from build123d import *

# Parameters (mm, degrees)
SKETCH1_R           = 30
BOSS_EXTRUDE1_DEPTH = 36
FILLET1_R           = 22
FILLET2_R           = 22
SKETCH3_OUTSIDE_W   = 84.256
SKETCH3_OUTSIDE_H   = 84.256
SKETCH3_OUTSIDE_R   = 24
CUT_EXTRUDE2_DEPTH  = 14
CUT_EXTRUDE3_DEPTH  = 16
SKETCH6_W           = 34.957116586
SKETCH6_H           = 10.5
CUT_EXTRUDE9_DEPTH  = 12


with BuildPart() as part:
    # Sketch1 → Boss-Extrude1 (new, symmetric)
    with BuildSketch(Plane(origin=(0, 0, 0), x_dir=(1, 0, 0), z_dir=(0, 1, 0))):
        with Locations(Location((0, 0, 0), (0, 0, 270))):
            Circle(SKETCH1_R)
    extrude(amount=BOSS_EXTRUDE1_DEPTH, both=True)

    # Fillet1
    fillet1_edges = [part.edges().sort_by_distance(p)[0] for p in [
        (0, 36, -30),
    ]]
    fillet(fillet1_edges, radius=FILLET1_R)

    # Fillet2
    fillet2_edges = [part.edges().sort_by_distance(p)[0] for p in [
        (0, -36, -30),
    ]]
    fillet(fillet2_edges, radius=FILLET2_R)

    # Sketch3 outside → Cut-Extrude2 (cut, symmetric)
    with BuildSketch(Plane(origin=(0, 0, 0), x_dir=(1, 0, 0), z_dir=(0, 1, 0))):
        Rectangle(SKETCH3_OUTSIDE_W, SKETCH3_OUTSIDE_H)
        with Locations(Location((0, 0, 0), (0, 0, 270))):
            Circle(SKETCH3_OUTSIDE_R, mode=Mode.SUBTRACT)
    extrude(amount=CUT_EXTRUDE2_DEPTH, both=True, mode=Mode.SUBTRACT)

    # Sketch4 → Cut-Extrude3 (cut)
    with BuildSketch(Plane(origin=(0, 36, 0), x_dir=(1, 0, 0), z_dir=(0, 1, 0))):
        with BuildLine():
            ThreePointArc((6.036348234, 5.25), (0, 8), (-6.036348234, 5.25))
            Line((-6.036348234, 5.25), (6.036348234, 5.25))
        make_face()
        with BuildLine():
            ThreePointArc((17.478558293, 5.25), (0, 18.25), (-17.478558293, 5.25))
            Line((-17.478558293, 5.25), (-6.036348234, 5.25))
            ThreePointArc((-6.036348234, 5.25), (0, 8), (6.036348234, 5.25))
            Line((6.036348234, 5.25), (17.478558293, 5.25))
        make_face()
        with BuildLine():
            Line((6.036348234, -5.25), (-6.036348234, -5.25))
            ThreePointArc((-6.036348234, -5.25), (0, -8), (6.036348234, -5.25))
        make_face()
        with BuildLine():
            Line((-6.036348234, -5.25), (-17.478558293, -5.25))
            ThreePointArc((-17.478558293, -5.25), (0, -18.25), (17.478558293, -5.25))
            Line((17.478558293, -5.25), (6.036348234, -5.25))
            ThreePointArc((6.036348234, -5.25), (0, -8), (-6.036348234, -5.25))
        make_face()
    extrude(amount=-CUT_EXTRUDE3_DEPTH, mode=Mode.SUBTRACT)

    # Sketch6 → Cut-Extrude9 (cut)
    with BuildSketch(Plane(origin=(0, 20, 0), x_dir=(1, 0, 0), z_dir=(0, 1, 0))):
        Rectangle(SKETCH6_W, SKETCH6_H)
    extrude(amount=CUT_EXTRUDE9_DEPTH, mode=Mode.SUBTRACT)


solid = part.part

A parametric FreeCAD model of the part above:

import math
import FreeCAD as App
import Part
import Sketcher


def edges_at(feature, points):
    """Names of the edges that pass closest to the given points."""
    edges = feature.Shape.Edges
    near = lambda p: min(range(len(edges)), key=lambda i: edges[i].distToShape(Part.Vertex(*p))[0])
    return sorted({f"Edge{near(p) + 1}" for p in points})


def add_polygon(sketch, points):
    """Adds a closed chain of lines whose ends are joined by coincident constraints."""
    first, n = sketch.GeometryCount, len(points)
    for a, b in zip(points, points[1:] + points[:1]):
        sketch.addGeometry(Part.LineSegment(App.Vector(*a, 0), App.Vector(*b, 0)), False)
    for i in range(n):
        sketch.addConstraint(Sketcher.Constraint("Coincident", first + i, 2, first + (i + 1) % n, 1))

doc = App.newDocument("Part")
body = doc.addObject("PartDesign::Body", "Body")

sketch1 = body.newObject("Sketcher::SketchObject", "Sketch")
sketch1.AttachmentSupport = (doc.getObject("XZ_Plane"), [""])
sketch1.MapMode = "FlatFace"
sketch1.addGeometry(Part.Circle(App.Vector(0, 0, 0), App.Vector(0, 0, 1), 30), False)
sketch1.addConstraint([
    Sketcher.Constraint("Coincident", 0, 3, -1, 1),
    Sketcher.Constraint("Diameter", 0, 60.0),
])
pad1 = body.newObject("PartDesign::Pad", "Pad")
pad1.Profile = sketch1
pad1.Length = 72
pad1.Midplane = True
doc.recompute()

fillet = body.newObject("PartDesign::Fillet", "Fillet")
fillet.Base = (pad1, edges_at(pad1, [(0, 36, -30)]))
fillet.Radius = 22
doc.recompute()

fillet2 = body.newObject("PartDesign::Fillet", "Fillet001")
fillet2.Base = (fillet, edges_at(fillet, [(0, -36, -30)]))
fillet2.Radius = 22

sketch2 = body.newObject("Sketcher::SketchObject", "Sketch001")
sketch2.AttachmentSupport = (doc.getObject("XZ_Plane"), [""])
sketch2.MapMode = "FlatFace"
add_polygon(sketch2, [(-42, -42), (-42, 42), (42, 42), (42, -42)])
sketch2.addGeometry(Part.Circle(App.Vector(0, 0, 0), App.Vector(0, 0, 1), 24), False)
sketch2.addConstraint([
    Sketcher.Constraint("Vertical", 0),
    Sketcher.Constraint("Horizontal", 1),
    Sketcher.Constraint("Vertical", 2),
    Sketcher.Constraint("Horizontal", 3),
    Sketcher.Constraint("Coincident", 4, 3, -1, 1),
    Sketcher.Constraint("Symmetric", 0, 2, 2, 2, -1, 1),
    Sketcher.Constraint("Equal", 3, 0),
    Sketcher.Constraint("Diameter", 4, 48.0),
    Sketcher.Constraint("DistanceX", 1, 1, 1, 2, 84.256),
])
pocket1 = body.newObject("PartDesign::Pocket", "Pocket")
pocket1.Profile = sketch2
pocket1.Length = 28
pocket1.Midplane = True

sketch3 = body.newObject("Sketcher::SketchObject", "Sketch002")
sketch3.AttachmentSupport = (doc.getObject("XZ_Plane"), [""])
sketch3.MapMode = "FlatFace"
sketch3.AttachmentOffset = App.Placement(App.Vector(0, 0, -36), App.Rotation())
sketch3.addGeometry([
    Part.ArcOfCircle(Part.Circle(App.Vector(0, 0, 0), App.Vector(0, 0, 1), 18), math.radians(-163), math.radians(-17)),
    Part.LineSegment(App.Vector(-17, -5, 0), App.Vector(17, -5, 0)),
    Part.ArcOfCircle(Part.Circle(App.Vector(0, 0, 0), App.Vector(0, 0, 1), 18), math.radians(17), math.radians(163)),
    Part.LineSegment(App.Vector(17, 5, 0), App.Vector(-17, 5, 0)),
], False)
sketch3.addConstraint([
    Sketcher.Constraint("Coincident", 0, 1, 1, 1),
    Sketcher.Constraint("Coincident", 1, 2, 0, 2),
    Sketcher.Constraint("Coincident", 2, 1, 3, 1),
    Sketcher.Constraint("Coincident", 3, 2, 2, 2),
    Sketcher.Constraint("Horizontal", 1),
    Sketcher.Constraint("Horizontal", 3),
    Sketcher.Constraint("Coincident", 0, 3, -1, 1),
    Sketcher.Constraint("Coincident", 2, 3, -1, 1),
    Sketcher.Constraint("Equal", 0, 2),
    Sketcher.Constraint("Vertical", 1, 2, 2, 1),
    Sketcher.Constraint("Radius", 0, 18.25),
    Sketcher.Constraint("DistanceY", 1, 2, 2, 1, 10.5),
])
pocket2 = body.newObject("PartDesign::Pocket", "Pocket001")
pocket2.Profile = sketch3
pocket2.Length = 16
pocket2.Reversed = True

sketch4 = body.newObject("Sketcher::SketchObject", "Sketch003")
sketch4.AttachmentSupport = (doc.getObject("XZ_Plane"), [""])
sketch4.MapMode = "FlatFace"
sketch4.AttachmentOffset = App.Placement(App.Vector(0, 0, -20), App.Rotation())
add_polygon(sketch4, [(-17, -5), (-17, 5), (17, 5), (17, -5)])
sketch4.addConstraint([
    Sketcher.Constraint("Vertical", 0),
    Sketcher.Constraint("Horizontal", 1),
    Sketcher.Constraint("Vertical", 2),
    Sketcher.Constraint("Horizontal", 3),
    Sketcher.Constraint("Symmetric", 0, 2, 2, 2, -1, 1),
    Sketcher.Constraint("DistanceY", 0, 1, 0, 2, 10.5),
    Sketcher.Constraint("DistanceX", 1, 1, 1, 2, 34.957117),
])
pocket3 = body.newObject("PartDesign::Pocket", "Pocket002")
pocket3.Profile = sketch4
pocket3.Length = 12

doc.recompute()
